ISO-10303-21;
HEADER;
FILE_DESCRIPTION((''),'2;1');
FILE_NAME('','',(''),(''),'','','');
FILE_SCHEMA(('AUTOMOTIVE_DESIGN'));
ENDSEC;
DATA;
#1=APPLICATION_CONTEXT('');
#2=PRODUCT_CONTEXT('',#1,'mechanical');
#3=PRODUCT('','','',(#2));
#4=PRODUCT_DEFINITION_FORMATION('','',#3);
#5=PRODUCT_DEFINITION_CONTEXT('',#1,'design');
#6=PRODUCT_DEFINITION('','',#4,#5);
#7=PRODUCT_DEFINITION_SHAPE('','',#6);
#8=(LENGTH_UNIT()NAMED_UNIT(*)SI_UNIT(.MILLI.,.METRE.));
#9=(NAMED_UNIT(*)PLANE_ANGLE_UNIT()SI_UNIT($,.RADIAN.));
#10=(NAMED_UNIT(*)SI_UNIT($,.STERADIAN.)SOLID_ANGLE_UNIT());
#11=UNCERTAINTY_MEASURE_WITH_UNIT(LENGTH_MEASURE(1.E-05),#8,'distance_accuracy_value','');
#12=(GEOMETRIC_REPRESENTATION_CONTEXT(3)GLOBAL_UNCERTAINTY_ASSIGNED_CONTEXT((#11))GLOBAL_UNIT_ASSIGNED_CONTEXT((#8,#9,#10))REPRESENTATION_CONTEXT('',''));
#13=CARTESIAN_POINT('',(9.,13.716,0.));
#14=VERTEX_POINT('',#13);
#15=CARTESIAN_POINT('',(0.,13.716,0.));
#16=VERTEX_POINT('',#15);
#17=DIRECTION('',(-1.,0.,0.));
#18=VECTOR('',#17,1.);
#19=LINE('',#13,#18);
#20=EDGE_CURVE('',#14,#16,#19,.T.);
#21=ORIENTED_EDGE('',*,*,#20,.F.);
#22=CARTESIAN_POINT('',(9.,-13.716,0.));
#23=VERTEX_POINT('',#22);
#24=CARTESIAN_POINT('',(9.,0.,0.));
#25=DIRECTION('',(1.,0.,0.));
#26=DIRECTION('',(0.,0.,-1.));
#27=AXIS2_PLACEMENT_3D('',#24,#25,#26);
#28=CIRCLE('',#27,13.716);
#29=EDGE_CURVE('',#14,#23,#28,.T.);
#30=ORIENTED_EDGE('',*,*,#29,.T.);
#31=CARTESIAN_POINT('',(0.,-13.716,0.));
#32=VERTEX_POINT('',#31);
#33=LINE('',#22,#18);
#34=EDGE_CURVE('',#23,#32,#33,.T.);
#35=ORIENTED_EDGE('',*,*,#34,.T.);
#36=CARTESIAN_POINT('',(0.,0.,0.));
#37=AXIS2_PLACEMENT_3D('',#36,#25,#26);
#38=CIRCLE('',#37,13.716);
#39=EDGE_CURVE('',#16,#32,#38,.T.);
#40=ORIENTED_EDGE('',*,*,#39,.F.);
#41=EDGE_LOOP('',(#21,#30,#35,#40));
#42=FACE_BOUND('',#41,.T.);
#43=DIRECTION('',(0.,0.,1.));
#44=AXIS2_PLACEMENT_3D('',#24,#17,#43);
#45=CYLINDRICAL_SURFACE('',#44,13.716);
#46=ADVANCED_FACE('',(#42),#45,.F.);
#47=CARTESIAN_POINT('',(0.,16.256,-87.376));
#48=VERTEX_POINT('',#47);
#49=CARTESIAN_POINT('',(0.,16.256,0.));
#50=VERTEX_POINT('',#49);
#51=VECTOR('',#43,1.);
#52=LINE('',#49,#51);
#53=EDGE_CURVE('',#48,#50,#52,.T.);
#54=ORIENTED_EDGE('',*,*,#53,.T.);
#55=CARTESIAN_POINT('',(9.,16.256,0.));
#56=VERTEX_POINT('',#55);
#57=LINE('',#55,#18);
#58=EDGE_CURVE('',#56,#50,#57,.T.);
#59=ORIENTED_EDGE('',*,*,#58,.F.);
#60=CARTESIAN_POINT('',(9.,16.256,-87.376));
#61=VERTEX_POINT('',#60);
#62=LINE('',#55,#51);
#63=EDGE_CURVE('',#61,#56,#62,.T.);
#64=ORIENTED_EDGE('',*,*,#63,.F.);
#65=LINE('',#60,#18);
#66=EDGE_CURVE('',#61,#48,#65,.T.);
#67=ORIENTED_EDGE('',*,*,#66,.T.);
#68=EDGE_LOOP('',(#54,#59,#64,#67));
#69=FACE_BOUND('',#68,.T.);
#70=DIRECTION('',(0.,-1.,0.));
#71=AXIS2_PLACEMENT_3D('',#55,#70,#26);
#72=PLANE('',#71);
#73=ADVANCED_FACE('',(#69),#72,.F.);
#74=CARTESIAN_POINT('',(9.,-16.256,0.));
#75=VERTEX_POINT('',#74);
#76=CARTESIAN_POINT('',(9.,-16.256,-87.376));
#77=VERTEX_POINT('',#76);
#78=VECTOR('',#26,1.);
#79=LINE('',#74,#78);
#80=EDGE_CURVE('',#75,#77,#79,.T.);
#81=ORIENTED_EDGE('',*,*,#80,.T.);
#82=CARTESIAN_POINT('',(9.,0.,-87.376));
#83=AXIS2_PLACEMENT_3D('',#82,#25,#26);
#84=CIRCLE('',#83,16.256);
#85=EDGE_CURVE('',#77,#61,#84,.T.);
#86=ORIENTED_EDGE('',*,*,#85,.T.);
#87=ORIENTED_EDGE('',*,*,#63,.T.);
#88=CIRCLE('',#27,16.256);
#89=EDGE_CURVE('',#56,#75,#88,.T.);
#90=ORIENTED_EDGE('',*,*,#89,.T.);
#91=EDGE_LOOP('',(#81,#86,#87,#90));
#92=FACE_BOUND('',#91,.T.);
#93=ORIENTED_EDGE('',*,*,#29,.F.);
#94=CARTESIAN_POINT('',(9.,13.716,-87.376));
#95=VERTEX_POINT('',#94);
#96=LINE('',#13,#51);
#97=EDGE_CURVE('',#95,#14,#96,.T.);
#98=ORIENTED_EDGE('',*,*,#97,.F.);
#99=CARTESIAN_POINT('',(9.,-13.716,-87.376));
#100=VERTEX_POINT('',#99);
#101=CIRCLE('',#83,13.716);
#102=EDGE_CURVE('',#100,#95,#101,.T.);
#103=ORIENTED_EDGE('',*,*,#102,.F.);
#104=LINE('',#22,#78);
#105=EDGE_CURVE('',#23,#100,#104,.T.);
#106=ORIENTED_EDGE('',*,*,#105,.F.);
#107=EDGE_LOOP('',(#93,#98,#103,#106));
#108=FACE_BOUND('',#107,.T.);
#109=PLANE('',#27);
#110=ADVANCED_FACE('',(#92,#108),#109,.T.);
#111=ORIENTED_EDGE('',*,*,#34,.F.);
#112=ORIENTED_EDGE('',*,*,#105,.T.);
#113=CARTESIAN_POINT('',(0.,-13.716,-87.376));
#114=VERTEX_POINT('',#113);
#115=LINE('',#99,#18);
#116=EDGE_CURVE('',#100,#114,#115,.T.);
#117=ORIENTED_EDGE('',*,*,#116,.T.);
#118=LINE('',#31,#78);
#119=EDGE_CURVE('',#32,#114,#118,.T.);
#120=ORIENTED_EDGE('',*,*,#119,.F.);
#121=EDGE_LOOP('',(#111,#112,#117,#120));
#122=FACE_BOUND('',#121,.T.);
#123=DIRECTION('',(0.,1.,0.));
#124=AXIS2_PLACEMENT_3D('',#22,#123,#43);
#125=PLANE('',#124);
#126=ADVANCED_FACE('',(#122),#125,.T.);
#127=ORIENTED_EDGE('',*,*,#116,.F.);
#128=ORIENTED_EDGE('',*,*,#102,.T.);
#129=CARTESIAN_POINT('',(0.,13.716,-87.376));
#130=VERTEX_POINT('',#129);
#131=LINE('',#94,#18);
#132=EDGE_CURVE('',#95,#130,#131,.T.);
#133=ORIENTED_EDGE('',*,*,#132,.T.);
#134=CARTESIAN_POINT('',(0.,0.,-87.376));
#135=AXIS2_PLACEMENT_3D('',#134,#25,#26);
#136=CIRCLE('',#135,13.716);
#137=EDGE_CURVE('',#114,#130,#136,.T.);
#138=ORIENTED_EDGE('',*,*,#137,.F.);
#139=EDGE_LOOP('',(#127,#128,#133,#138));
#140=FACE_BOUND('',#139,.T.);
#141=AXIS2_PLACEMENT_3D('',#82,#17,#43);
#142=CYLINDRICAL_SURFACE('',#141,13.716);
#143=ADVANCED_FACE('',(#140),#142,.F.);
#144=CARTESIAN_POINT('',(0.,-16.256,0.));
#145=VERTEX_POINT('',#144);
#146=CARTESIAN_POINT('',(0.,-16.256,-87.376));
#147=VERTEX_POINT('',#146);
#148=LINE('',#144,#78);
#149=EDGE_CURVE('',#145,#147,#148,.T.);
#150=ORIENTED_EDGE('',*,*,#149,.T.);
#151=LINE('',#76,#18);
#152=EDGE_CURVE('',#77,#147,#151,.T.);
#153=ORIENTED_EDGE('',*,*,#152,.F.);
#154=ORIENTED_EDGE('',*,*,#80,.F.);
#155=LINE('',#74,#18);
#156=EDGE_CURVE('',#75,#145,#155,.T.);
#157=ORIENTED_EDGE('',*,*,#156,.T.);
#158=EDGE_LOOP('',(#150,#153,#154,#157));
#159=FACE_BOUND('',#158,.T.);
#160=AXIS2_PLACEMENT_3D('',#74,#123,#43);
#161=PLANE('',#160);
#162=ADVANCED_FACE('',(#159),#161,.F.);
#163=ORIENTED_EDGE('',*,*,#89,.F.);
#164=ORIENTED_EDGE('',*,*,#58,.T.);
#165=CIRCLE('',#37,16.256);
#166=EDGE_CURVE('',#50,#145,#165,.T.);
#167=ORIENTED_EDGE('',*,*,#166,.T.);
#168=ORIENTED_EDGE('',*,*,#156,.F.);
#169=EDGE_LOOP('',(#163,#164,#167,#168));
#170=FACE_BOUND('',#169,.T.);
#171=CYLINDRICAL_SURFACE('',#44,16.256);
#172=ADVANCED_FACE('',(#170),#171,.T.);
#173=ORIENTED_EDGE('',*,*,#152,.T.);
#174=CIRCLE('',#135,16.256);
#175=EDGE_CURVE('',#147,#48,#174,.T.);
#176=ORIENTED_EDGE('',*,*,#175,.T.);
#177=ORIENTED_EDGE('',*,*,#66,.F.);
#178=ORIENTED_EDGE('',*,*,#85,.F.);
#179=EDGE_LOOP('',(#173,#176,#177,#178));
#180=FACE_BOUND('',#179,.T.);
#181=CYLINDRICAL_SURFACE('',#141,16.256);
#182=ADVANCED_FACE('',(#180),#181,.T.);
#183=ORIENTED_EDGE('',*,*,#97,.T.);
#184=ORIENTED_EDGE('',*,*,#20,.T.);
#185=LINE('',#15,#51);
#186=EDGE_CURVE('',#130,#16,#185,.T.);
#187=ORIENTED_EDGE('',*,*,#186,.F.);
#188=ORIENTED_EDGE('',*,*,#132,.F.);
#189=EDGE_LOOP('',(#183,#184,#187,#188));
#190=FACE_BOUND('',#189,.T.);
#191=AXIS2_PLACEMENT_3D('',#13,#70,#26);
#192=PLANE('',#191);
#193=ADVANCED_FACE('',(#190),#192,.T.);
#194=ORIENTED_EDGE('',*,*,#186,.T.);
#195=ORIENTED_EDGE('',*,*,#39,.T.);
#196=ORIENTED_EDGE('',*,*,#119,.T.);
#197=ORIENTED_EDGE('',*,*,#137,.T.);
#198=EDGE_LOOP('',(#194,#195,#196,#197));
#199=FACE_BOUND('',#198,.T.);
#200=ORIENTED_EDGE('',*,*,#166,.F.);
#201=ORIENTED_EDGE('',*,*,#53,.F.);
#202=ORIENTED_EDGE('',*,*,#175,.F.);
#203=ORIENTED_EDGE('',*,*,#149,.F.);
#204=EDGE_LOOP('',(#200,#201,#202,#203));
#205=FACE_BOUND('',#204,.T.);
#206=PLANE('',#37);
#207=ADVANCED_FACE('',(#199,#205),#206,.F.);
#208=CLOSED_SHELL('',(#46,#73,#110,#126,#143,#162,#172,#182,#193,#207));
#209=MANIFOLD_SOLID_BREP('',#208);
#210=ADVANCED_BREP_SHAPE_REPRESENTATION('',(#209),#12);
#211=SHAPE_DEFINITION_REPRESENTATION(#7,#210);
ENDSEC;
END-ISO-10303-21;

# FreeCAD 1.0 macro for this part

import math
import FreeCAD as App
import Part
import Sketcher
Q = App.Units.Quantity

doc = App.newDocument("Part")
params = doc.addObject("Spreadsheet::Sheet", "Params")
for row, (alias, value) in enumerate([
    ("sketch1_radius", "0.64 in"),
    ("sketch1_radius2", "0.54 in"),
    ("sketch1_height", "3.44 in"),
    ("pad1_length", "9 mm"),
], start=1):
    params.set(f"A{row}", alias)
    params.set(f"B{row}", "=" + value)
    params.setAlias(f"B{row}", alias)

body = doc.addObject("PartDesign::Body", "Body")

sketch1 = body.newObject("Sketcher::SketchObject", "Sketch")
sketch1.AttachmentSupport = (doc.getObject("YZ_Plane"), [""])
sketch1.MapMode = "FlatFace"
sketch1.addGeometry([
    Part.LineSegment(App.Vector(16.256, -87.376, 0), App.Vector(16.256, 0, 0)),
    Part.ArcOfCircle(Part.Circle(App.Vector(0, 0, 0), App.Vector(0, 0, 1), 16.256), math.radians(0), math.radians(180)),
    Part.LineSegment(App.Vector(-16.256, 0, 0), App.Vector(-16.256, -87.376, 0)),
    Part.ArcOfCircle(Part.Circle(App.Vector(0, -87.376, 0), App.Vector(0, 0, 1), 16.256), math.radians(180), math.radians(360)),
    Part.LineSegment(App.Vector(13.716, 0, 0), App.Vector(13.716, -87.376, 0)),
    Part.ArcOfCircle(Part.Circle(App.Vector(0, -87.376, 0), App.Vector(0, 0, 1), 13.716), math.radians(180), math.radians(360)),
    Part.LineSegment(App.Vector(-13.716, -87.376, 0), App.Vector(-13.716, 0, 0)),
    Part.ArcOfCircle(Part.Circle(App.Vector(0, 0, 0), App.Vector(0, 0, 1), 13.716), math.radians(0), math.radians(180)),
], False)
sketch1.addConstraint([
    Sketcher.Constraint("Tangent", 0, 2, 1, 1),
    Sketcher.Constraint("Tangent", 1, 2, 2, 1),
    Sketcher.Constraint("Tangent", 2, 2, 3, 1),
    Sketcher.Constraint("Tangent", 3, 2, 0, 1),
    Sketcher.Constraint("Tangent", 4, 2, 5, 2),
    Sketcher.Constraint("Tangent", 5, 1, 6, 1),
    Sketcher.Constraint("Tangent", 6, 2, 7, 2),
    Sketcher.Constraint("Tangent", 7, 1, 4, 1),
    Sketcher.Constraint("Vertical", 0),
    Sketcher.Constraint("Vertical", 2),
    Sketcher.Constraint("Vertical", 4),
    Sketcher.Constraint("Vertical", 6),
    Sketcher.Constraint("Coincident", 1, 3, -1, 1),
    Sketcher.Constraint("Coincident", 7, 3, -1, 1),
    Sketcher.Constraint("Horizontal", 5, 3, 2, 2),
    Sketcher.Constraint("Radius", 1, Q("0.64 in")),
    Sketcher.Constraint("Radius", 5, Q("0.54 in")),
    Sketcher.Constraint("DistanceY", 0, 1, 0, 2, Q("3.44 in")),
])
sketch1.setExpression("Constraints[15]", "Params.sketch1_radius")
sketch1.setExpression("Constraints[16]", "Params.sketch1_radius2")
sketch1.setExpression("Constraints[17]", "Params.sketch1_height")
pad1 = body.newObject("PartDesign::Pad", "Pad")
pad1.Profile = sketch1
pad1.setExpression("Length", "Params.pad1_length")

doc.recompute()
